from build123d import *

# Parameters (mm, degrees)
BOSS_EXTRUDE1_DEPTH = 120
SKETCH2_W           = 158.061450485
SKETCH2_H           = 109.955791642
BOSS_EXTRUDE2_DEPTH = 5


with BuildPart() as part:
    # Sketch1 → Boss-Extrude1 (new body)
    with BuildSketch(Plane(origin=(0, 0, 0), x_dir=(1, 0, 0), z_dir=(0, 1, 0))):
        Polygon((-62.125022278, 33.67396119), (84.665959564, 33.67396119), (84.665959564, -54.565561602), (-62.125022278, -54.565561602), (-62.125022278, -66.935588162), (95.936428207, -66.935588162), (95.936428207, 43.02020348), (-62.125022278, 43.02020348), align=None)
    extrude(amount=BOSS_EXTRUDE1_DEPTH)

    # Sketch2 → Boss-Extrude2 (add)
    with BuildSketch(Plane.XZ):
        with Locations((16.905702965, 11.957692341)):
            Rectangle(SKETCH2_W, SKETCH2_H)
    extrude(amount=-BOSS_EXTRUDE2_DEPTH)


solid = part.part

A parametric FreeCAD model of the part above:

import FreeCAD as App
import Part
import Sketcher
from FreeCAD import Vector


def add_polygon(sketch, points):
    """Adds a closed chain of lines whose ends are joined by coincident constraints."""
    first, n = sketch.GeometryCount, len(points)
    for a, b in zip(points, points[1:] + points[:1]):
        sketch.addGeometry(Part.LineSegment(App.Vector(*a, 0), App.Vector(*b, 0)), False)
    for i in range(n):
        sketch.addConstraint(Sketcher.Constraint("Coincident", first + i, 2, first + (i + 1) % n, 1))

doc = App.newDocument("Part")
body = doc.addObject("PartDesign::Body", "Body")

sketch1 = body.newObject("Sketcher::SketchObject", "Sketch")
sketch1.AttachmentSupport = (doc.getObject("XZ_Plane"), [""])
sketch1.MapMode = "FlatFace"
add_polygon(sketch1, [(-62, -34), (85, -34), (85, 55), (-62, 55), (-62, 67), (96, 67), (96, -43), (-62, -43)])
sketch1.addConstraint([
    Sketcher.Constraint("Horizontal", 0),
    Sketcher.Constraint("Vertical", 1),
    Sketcher.Constraint("Horizontal", 2),
    Sketcher.Constraint("Vertical", 3),
    Sketcher.Constraint("Horizontal", 4),
    Sketcher.Constraint("Vertical", 5),
    Sketcher.Constraint("Horizontal", 6),
    Sketcher.Constraint("Vertical", 7),
    Sketcher.Constraint("Vertical", 3, 2, 6, 2),
    Sketcher.Constraint("DistanceX", 0, 1, 0, 2, 146.790982),
    Sketcher.Constraint("DistanceX", 4, 1, 4, 2, 158.06145),
    Sketcher.Constraint("DistanceY", 5, 2, 5, 1, 109.955792),
    Sketcher.Constraint("DistanceY", 1, 1, 1, 2, 88.239523),
    Sketcher.Constraint("DistanceY", 3, 1, 3, 2, 12.370027),
    Sketcher.Constraint("DistanceX", -1, 1, 0, 2, 84.66596),
    Sketcher.Constraint("DistanceY", 0, 2, -1, 1, 33.673961),
])
pad1 = body.newObject("PartDesign::Pad", "Pad")
pad1.Profile = sketch1
pad1.Length = 120
pad1.Reversed = True

sketch2 = body.newObject("Sketcher::SketchObject", "Sketch001")
sketch2.AttachmentSupport = (doc.getObject("XZ_Plane"), [""])
sketch2.MapMode = "FlatFace"
add_polygon(sketch2, [(-62, 67), (-62, -43), (96, -43), (96, 67)])
sketch2.addConstraint([
    Sketcher.Constraint("Vertical", 0),
    Sketcher.Constraint("Horizontal", 1),
    Sketcher.Constraint("Vertical", 2),
    Sketcher.Constraint("Horizontal", 3),
    Sketcher.Constraint("DistanceX", 1, 1, 1, 2, 158.06145),
    Sketcher.Constraint("DistanceY", 0, 2, 0, 1, 109.955792),
    Sketcher.Constraint("DistanceX", -1, 1, 1, 2, 95.936428),
    Sketcher.Constraint("DistanceY", -1, 1, 2, 2, 66.935588),
])
pad2 = body.newObject("PartDesign::Pad", "Pad001")
pad2.Profile = sketch2
pad2.Length = 5
pad2.Reversed = True

doc.recompute()
